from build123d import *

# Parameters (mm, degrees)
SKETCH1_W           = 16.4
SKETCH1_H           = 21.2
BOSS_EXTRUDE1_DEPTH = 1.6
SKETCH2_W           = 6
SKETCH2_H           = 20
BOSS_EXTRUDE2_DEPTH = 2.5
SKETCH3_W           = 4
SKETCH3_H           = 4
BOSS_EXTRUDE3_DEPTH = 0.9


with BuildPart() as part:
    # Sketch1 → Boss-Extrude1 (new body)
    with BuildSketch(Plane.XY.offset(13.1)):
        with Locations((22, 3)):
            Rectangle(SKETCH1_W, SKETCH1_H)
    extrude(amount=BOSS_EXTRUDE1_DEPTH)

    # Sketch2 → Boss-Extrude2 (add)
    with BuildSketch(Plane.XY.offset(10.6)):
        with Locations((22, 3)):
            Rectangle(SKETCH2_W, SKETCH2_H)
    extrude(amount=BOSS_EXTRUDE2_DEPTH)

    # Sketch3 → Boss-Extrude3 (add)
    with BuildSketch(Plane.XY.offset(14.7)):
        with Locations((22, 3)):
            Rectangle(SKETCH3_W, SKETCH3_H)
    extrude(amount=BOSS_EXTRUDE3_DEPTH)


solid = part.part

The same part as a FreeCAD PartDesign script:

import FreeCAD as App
import Part
import Sketcher


def add_polygon(sketch, points):
    """Adds a closed chain of lines whose ends are joined by coincident constraints."""
    first, n = sketch.GeometryCount, len(points)
    for a, b in zip(points, points[1:] + points[:1]):
        sketch.addGeometry(Part.LineSegment(App.Vector(*a, 0), App.Vector(*b, 0)), False)
    for i in range(n):
        sketch.addConstraint(Sketcher.Constraint("Coincident", first + i, 2, first + (i + 1) % n, 1))

doc = App.newDocument("Part")
body = doc.addObject("PartDesign::Body", "Body")

# Sketch on XY plane
sketch1 = body.newObject("Sketcher::SketchObject", "Sketch")
sketch1.AttachmentSupport = (doc.getObject("XY_Plane"), [""])
sketch1.MapMode = "FlatFace"
sketch1.AttachmentOffset = App.Placement(App.Vector(0, 0, 13.1), App.Rotation())
add_polygon(sketch1, [(14, 14), (14, -8), (30, -8), (30, 14)])  # lines 0-3
sketch1.addConstraint([
    Sketcher.Constraint("Vertical", 0),
    Sketcher.Constraint("Horizontal", 1),
    Sketcher.Constraint("Vertical", 2),
    Sketcher.Constraint("Horizontal", 3),
    Sketcher.Constraint("DistanceX", 1, 1, 1, 2, 16.4),
    Sketcher.Constraint("DistanceY", 0, 2, 0, 1, 21.2),
    Sketcher.Constraint("DistanceX", -1, 1, 0, 2, 13.8),
    Sketcher.Constraint("DistanceY", 0, 2, -1, 1, 7.6),
])
pad1 = body.newObject("PartDesign::Pad", "Pad")
pad1.Profile = sketch1
pad1.Length = 1.6

# Sketch on XY plane
sketch2 = body.newObject("Sketcher::SketchObject", "Sketch001")
sketch2.AttachmentSupport = (doc.getObject("XY_Plane"), [""])
sketch2.MapMode = "FlatFace"
sketch2.AttachmentOffset = App.Placement(App.Vector(0, 0, 10.6), App.Rotation())
add_polygon(sketch2, [(19, 13), (19, -7), (25, -7), (25, 13)])  # lines 0-3
sketch2.addConstraint([
    Sketcher.Constraint("Vertical", 0),
    Sketcher.Constraint("Horizontal", 1),
    Sketcher.Constraint("Vertical", 2),
    Sketcher.Constraint("Horizontal", 3),
    Sketcher.Constraint("DistanceX", 1, 1, 1, 2, 6.0),
    Sketcher.Constraint("DistanceY", 0, 2, 0, 1, 20.0),
    Sketcher.Constraint("DistanceX", -1, 1, 0, 2, 19.0),
    Sketcher.Constraint("DistanceY", 0, 2, -1, 1, 7.0),
])
pad2 = body.newObject("PartDesign::Pad", "Pad001")
pad2.Profile = sketch2
pad2.Length = 2.5

# Sketch on XY plane
sketch3 = body.newObject("Sketcher::SketchObject", "Sketch002")
sketch3.AttachmentSupport = (doc.getObject("XY_Plane"), [""])
sketch3.MapMode = "FlatFace"
sketch3.AttachmentOffset = App.Placement(App.Vector(0, 0, 14.7), App.Rotation())
add_polygon(sketch3, [(20, 5), (20, 1), (24, 1), (24, 5)])  # lines 0-3
sketch3.addConstraint([
    Sketcher.Constraint("Vertical", 0),
    Sketcher.Constraint("Horizontal", 1),
    Sketcher.Constraint("Vertical", 2),
    Sketcher.Constraint("Horizontal", 3),
    Sketcher.Constraint("Equal", 3, 0),
    Sketcher.Constraint("DistanceX", 1, 1, 1, 2, 4.0),
    Sketcher.Constraint("DistanceX", -1, 1, 0, 2, 20.0),
    Sketcher.Constraint("DistanceY", -1, 1, 0, 2, 1.0),
])
pad3 = body.newObject("PartDesign::Pad", "Pad002")
pad3.Profile = sketch3
pad3.Length = 0.9

doc.recompute()
